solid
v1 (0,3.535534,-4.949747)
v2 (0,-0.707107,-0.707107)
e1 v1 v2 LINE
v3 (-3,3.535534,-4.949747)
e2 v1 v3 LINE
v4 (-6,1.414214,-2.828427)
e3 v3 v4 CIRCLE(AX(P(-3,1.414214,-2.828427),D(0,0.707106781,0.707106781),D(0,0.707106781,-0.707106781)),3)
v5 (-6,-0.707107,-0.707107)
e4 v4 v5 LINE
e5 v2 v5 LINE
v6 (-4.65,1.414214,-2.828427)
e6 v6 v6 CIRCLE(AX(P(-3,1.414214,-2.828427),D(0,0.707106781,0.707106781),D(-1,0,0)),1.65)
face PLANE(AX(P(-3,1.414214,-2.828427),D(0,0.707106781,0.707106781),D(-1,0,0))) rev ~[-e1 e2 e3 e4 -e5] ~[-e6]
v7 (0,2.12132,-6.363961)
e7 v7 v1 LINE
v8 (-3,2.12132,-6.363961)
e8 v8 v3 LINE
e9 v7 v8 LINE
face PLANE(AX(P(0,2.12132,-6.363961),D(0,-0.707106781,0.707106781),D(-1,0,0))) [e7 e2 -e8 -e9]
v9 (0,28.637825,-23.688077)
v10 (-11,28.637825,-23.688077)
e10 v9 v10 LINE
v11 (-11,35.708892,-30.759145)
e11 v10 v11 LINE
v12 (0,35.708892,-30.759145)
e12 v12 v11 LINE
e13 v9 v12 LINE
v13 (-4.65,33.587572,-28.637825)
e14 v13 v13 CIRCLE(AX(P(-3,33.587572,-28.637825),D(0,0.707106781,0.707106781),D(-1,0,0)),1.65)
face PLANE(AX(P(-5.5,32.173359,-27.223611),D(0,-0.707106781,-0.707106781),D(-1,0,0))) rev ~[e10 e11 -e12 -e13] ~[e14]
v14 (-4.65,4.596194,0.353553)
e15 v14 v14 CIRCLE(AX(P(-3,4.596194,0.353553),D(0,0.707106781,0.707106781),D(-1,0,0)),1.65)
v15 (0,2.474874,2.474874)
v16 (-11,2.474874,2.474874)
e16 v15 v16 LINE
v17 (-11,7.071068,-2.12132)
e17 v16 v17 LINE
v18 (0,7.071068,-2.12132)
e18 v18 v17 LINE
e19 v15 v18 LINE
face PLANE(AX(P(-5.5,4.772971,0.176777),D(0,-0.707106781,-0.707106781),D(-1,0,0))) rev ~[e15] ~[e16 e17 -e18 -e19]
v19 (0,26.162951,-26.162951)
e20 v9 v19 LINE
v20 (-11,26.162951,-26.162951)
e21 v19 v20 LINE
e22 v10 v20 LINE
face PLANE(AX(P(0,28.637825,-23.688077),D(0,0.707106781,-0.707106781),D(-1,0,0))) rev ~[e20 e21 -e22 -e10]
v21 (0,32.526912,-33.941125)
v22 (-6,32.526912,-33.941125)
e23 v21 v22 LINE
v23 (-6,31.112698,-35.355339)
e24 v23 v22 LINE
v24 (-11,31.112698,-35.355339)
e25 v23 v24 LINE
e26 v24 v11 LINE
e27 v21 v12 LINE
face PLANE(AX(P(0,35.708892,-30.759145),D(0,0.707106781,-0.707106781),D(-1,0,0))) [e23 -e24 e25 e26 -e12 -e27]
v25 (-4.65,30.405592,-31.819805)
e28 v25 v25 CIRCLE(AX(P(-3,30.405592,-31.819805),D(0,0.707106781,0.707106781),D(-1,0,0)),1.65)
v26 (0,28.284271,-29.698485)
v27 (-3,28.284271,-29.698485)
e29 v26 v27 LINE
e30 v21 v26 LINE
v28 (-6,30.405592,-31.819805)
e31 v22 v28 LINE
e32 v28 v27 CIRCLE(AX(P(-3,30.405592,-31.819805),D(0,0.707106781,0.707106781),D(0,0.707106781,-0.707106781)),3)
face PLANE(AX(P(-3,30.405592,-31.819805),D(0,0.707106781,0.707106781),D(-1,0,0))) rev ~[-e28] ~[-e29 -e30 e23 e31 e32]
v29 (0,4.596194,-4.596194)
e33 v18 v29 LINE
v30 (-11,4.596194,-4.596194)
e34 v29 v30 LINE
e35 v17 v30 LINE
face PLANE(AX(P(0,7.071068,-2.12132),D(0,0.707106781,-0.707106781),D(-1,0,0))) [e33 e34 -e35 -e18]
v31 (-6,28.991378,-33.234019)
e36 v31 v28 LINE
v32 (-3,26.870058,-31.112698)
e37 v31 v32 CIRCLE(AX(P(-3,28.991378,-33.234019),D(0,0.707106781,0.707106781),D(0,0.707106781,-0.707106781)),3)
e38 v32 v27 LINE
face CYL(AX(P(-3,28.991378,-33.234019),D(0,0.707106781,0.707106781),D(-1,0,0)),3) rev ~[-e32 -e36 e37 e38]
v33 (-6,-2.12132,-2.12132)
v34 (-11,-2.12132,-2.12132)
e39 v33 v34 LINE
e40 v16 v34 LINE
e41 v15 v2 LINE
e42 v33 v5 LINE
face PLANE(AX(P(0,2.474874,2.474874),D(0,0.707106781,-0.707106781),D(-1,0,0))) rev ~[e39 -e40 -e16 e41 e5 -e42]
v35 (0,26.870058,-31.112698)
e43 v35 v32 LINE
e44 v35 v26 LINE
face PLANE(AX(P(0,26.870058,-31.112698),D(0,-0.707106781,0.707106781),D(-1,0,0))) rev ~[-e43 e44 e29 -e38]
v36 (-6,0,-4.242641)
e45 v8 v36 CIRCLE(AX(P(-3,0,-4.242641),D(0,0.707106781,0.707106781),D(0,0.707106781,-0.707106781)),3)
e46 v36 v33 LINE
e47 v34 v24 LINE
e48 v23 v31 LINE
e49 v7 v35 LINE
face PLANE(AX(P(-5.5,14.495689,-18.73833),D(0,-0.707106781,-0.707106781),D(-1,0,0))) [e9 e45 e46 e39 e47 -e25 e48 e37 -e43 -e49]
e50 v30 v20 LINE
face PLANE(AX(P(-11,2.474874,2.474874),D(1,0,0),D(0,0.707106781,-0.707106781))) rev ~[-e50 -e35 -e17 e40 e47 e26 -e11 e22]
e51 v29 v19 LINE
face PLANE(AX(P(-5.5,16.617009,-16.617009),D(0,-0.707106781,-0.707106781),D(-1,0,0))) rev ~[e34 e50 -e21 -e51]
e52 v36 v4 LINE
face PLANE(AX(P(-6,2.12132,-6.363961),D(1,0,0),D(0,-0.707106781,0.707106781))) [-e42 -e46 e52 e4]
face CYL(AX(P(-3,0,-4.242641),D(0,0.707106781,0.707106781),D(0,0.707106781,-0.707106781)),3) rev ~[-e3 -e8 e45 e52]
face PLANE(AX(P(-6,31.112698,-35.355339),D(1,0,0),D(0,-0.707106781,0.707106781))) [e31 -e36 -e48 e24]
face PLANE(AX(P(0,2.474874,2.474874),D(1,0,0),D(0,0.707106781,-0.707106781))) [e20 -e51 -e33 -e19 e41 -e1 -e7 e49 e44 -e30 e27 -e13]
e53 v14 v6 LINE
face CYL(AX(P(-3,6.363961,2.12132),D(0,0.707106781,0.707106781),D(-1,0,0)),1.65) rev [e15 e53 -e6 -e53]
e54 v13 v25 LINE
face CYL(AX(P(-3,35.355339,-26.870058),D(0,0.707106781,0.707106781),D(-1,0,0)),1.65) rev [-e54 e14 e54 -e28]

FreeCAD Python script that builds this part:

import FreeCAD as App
import Part
import Sketcher
from FreeCAD import Vector
Q = App.Units.Quantity


def edges_at(feature, points):
    """Names of the edges that pass closest to the given points."""
    edges = feature.Shape.Edges
    near = lambda p: min(range(len(edges)), key=lambda i: edges[i].distToShape(Part.Vertex(*p))[0])
    return sorted({f"Edge{near(p) + 1}" for p in points})


def add_polygon(sketch, points):
    """Adds a closed chain of lines whose ends are joined by coincident constraints."""
    first, n = sketch.GeometryCount, len(points)
    for a, b in zip(points, points[1:] + points[:1]):
        sketch.addGeometry(Part.LineSegment(App.Vector(*a, 0), App.Vector(*b, 0)), False)
    for i in range(n):
        sketch.addConstraint(Sketcher.Constraint("Coincident", first + i, 2, first + (i + 1) % n, 1))

doc = App.newDocument("Part")
params = doc.addObject("Spreadsheet::Sheet", "Params")
for row, (alias, value) in enumerate([
    ("sketch1_width", "6 mm"),
    ("pad1_length", "2 mm"),
    ("fillet_radius", "3 mm"),
    ("sketch2_width", "6 mm"),
    ("pad2_length", "2 mm"),
    ("fillet2_radius", "3 mm"),
    ("sketch3_diameter", "3.3 mm"),
    ("pad3_length", "10 mm"),
    ("sketch4_diameter", "3.3 mm"),
    ("pad4_length", "10 mm"),
    ("sketch5_width", "11 mm"),
    ("sketch5_height", "10 mm"),
    ("pad5_length", "3.5 mm"),
    ("sketch6_width", "11 mm"),
    ("sketch6_height", "6.5 mm"),
    ("pad6_length", "3.5 mm"),
    ("sketch7_width", "11 mm"),
    ("sketch7_height", "47 mm"),
    ("pad7_length", "3 mm"),
], start=1):
    params.set(f"A{row}", alias)
    params.set(f"B{row}", "=" + value)
    params.setAlias(f"B{row}", alias)

body = doc.addObject("PartDesign::Body", "Body")

sketch1 = doc.addObject("Sketcher::SketchObject", "Sketch")
body.addObject(sketch1)
sketch1.AttachmentSupport = (doc.XY_Plane, [""])
sketch1.MapMode = "FlatFace"
sketch1.AttachmentOffset = App.Placement(Vector(0, 0, -3), App.Rotation())
add_polygon(sketch1, [(0, -41), (0, -47), (6, -47), (6, -41)])
sketch1.addConstraint(Sketcher.Constraint("Vertical", 0))
sketch1.addConstraint(Sketcher.Constraint("Horizontal", 1))
sketch1.addConstraint(Sketcher.Constraint("Vertical", 2))
sketch1.addConstraint(Sketcher.Constraint("Horizontal", 3))
sketch1.addConstraint(Sketcher.Constraint("PointOnObject", 0, 2, -2))
sketch1.addConstraint(Sketcher.Constraint("Equal", 3, 0))
sketch1.addConstraint(Sketcher.Constraint("DistanceX", 1, 1, 1, 2, Q("6 mm")))
sketch1.addConstraint(Sketcher.Constraint("DistanceY", 0, 2, -1, 1, Q("47 mm")))
sketch1.setExpression("Constraints[10]", "Params.sketch1_width")
pad1 = doc.addObject("PartDesign::Pad", "Pad")
body.addObject(pad1)
pad1.Profile = sketch1
pad1.setExpression("Length", "Params.pad1_length")
doc.recompute()

fillet = doc.addObject("PartDesign::Fillet", "Fillet")
body.addObject(fillet)
fillet.Base = (pad1, edges_at(pad1, [(6, -41, -2)]))
fillet.setExpression("Radius", "Params.fillet_radius")
body2 = doc.addObject("PartDesign::Body", "Body001")
body2.AllowCompound = True

sketch2 = doc.addObject("Sketcher::SketchObject", "Sketch001")
body2.addObject(sketch2)
sketch2.AttachmentSupport = (doc.getObject("XY_Plane001"), [""])
sketch2.MapMode = "FlatFace"
sketch2.AttachmentOffset = App.Placement(Vector(0, 0, -3), App.Rotation())
add_polygon(sketch2, [(0, 0), (0, -6), (6, -6), (6, 0)])
sketch2.addConstraint(Sketcher.Constraint("Vertical", 0))
sketch2.addConstraint(Sketcher.Constraint("Horizontal", 1))
sketch2.addConstraint(Sketcher.Constraint("Vertical", 2))
sketch2.addConstraint(Sketcher.Constraint("Horizontal", 3))
sketch2.addConstraint(Sketcher.Constraint("Coincident", 3, 2, -1, 1))
sketch2.addConstraint(Sketcher.Constraint("Equal", 3, 0))
sketch2.addConstraint(Sketcher.Constraint("DistanceX", 1, 1, 1, 2, Q("6 mm")))
sketch2.setExpression("Constraints[10]", "Params.sketch2_width")
pad2 = doc.addObject("PartDesign::Pad", "Pad001")
body2.addObject(pad2)
pad2.Profile = sketch2
pad2.setExpression("Length", "Params.pad2_length")
doc.recompute()

fillet2 = doc.addObject("PartDesign::Fillet", "Fillet001")
body2.addObject(fillet2)
fillet2.Base = (pad2, edges_at(pad2, [(6, -6, -2)]))
fillet2.setExpression("Radius", "Params.fillet2_radius")
doc.recompute()

boolean = doc.addObject("PartDesign::Boolean", "Boolean")
body2.addObject(boolean)
boolean.Type = "Fuse"
boolean.addObjects([body])
body3 = doc.addObject("PartDesign::Body", "Body002")

sketch3 = doc.addObject("Sketcher::SketchObject", "Sketch002")
body3.addObject(sketch3)
sketch3.AttachmentSupport = (doc.getObject("XY_Plane002"), [""])
sketch3.MapMode = "FlatFace"
sketch3.addGeometry(Part.Circle(Vector(3, 3, 0), Vector(0, 0, 1), 1.6), False)
sketch3.addConstraint(Sketcher.Constraint("Diameter", 0, Q("3.3 mm")))
sketch3.addConstraint(Sketcher.Constraint("DistanceX", -1, 1, 0, 3, Q("3 mm")))
sketch3.addConstraint(Sketcher.Constraint("DistanceY", -1, 1, 0, 3, Q("3 mm")))
sketch3.setExpression("Constraints[0]", "Params.sketch3_diameter")
pad3 = doc.addObject("PartDesign::Pad", "Pad002")
body3.addObject(pad3)
pad3.Profile = sketch3
pad3.setExpression("Length", "Params.pad3_length")
body4 = doc.addObject("PartDesign::Body", "Body003")
body4.AllowCompound = True

sketch4 = doc.addObject("Sketcher::SketchObject", "Sketch003")
body4.addObject(sketch4)
sketch4.AttachmentSupport = (doc.getObject("XY_Plane003"), [""])
sketch4.MapMode = "FlatFace"
sketch4.addGeometry(Part.Circle(Vector(3, 44, 0), Vector(0, 0, 1), 1.6), False)
sketch4.addConstraint(Sketcher.Constraint("Diameter", 0, Q("3.3 mm")))
sketch4.addConstraint(Sketcher.Constraint("DistanceX", -1, 1, 0, 3, Q("3 mm")))
sketch4.addConstraint(Sketcher.Constraint("DistanceY", -1, 1, 0, 3, Q("44 mm")))
sketch4.setExpression("Constraints[0]", "Params.sketch4_diameter")
pad4 = doc.addObject("PartDesign::Pad", "Pad003")
body4.addObject(pad4)
pad4.Profile = sketch4
pad4.setExpression("Length", "Params.pad4_length")
doc.recompute()

boolean2 = doc.addObject("PartDesign::Boolean", "Boolean001")
body4.addObject(boolean2)
boolean2.Type = "Fuse"
boolean2.addObjects([body3])
body5 = doc.addObject("PartDesign::Body", "Body004")
body5.AllowCompound = True
doc.recompute()

body4.Placement = App.Placement(Vector(0, 0, -6), App.Rotation(Vector(0, 0, 1), 0))
boolean3 = doc.addObject("PartDesign::Boolean", "Boolean002")
body5.addObject(boolean3)
boolean3.Type = "Fuse"
boolean3.addObjects([body4])
body6 = doc.addObject("PartDesign::Body", "Body005")

sketch5 = doc.addObject("Sketcher::SketchObject", "Sketch004")
body6.addObject(sketch5)
sketch5.AttachmentSupport = (doc.getObject("XY_Plane005"), [""])
sketch5.MapMode = "FlatFace"
sketch5.AttachmentOffset = App.Placement(Vector(0, 0, -3.5), App.Rotation())
add_polygon(sketch5, [(0, 47), (0, 37), (11, 37), (11, 47)])
sketch5.addConstraint(Sketcher.Constraint("Vertical", 0))
sketch5.addConstraint(Sketcher.Constraint("Horizontal", 1))
sketch5.addConstraint(Sketcher.Constraint("Vertical", 2))
sketch5.addConstraint(Sketcher.Constraint("Horizontal", 3))
sketch5.addConstraint(Sketcher.Constraint("PointOnObject", 0, 2, -2))
sketch5.addConstraint(Sketcher.Constraint("DistanceX", 1, 1, 1, 2, Q("11 mm")))
sketch5.addConstraint(Sketcher.Constraint("DistanceY", 0, 2, 0, 1, Q("10 mm")))
sketch5.addConstraint(Sketcher.Constraint("DistanceY", -1, 1, 0, 2, Q("37 mm")))
sketch5.setExpression("Constraints[9]", "Params.sketch5_width")
sketch5.setExpression("Constraints[10]", "Params.sketch5_height")
pad5 = doc.addObject("PartDesign::Pad", "Pad004")
body6.addObject(pad5)
pad5.Profile = sketch5
pad5.setExpression("Length", "Params.pad5_length")
body7 = doc.addObject("PartDesign::Body", "Body006")

sketch6 = doc.addObject("Sketcher::SketchObject", "Sketch005")
body7.addObject(sketch6)
sketch6.AttachmentSupport = (doc.getObject("XY_Plane006"), [""])
sketch6.MapMode = "FlatFace"
sketch6.AttachmentOffset = App.Placement(Vector(0, 0, -3.5), App.Rotation())
add_polygon(sketch6, [(0, 6), (0, 0), (11, 0), (11, 6)])
sketch6.addConstraint(Sketcher.Constraint("Vertical", 0))
sketch6.addConstraint(Sketcher.Constraint("Horizontal", 1))
sketch6.addConstraint(Sketcher.Constraint("Vertical", 2))
sketch6.addConstraint(Sketcher.Constraint("Horizontal", 3))
sketch6.addConstraint(Sketcher.Constraint("Coincident", 0, 2, -1, 1))
sketch6.addConstraint(Sketcher.Constraint("DistanceX", 1, 1, 1, 2, Q("11 mm")))
sketch6.addConstraint(Sketcher.Constraint("DistanceY", 0, 2, 0, 1, Q("6.5 mm")))
sketch6.setExpression("Constraints[9]", "Params.sketch6_width")
sketch6.setExpression("Constraints[10]", "Params.sketch6_height")
pad6 = doc.addObject("PartDesign::Pad", "Pad005")
body7.addObject(pad6)
pad6.Profile = sketch6
pad6.setExpression("Length", "Params.pad6_length")
body8 = doc.addObject("PartDesign::Body", "Body007")

sketch7 = doc.addObject("Sketcher::SketchObject", "Sketch006")
body8.addObject(sketch7)
sketch7.AttachmentSupport = (doc.getObject("XY_Plane007"), [""])
sketch7.MapMode = "FlatFace"
add_polygon(sketch7, [(0, 47), (0, 0), (11, 0), (11, 47)])
sketch7.addConstraint(Sketcher.Constraint("Vertical", 0))
sketch7.addConstraint(Sketcher.Constraint("Horizontal", 1))
sketch7.addConstraint(Sketcher.Constraint("Vertical", 2))
sketch7.addConstraint(Sketcher.Constraint("Horizontal", 3))
sketch7.addConstraint(Sketcher.Constraint("Coincident", 0, 2, -1, 1))
sketch7.addConstraint(Sketcher.Constraint("DistanceX", 1, 1, 1, 2, Q("11 mm")))
sketch7.addConstraint(Sketcher.Constraint("DistanceY", 0, 2, 0, 1, Q("47 mm")))
sketch7.setExpression("Constraints[9]", "Params.sketch7_width")
sketch7.setExpression("Constraints[10]", "Params.sketch7_height")
pad7 = doc.addObject("PartDesign::Pad", "Pad006")
body8.addObject(pad7)
pad7.Profile = sketch7
pad7.setExpression("Length", "Params.pad7_length")
doc.recompute()

boolean4 = doc.addObject("PartDesign::Boolean", "Boolean003")
body8.addObject(boolean4)
boolean4.Type = "Fuse"
boolean4.addObjects([body6])
doc.recompute()

boolean5 = doc.addObject("PartDesign::Boolean", "Boolean004")
body8.addObject(boolean5)
boolean5.Type = "Fuse"
boolean5.addObjects([body7])
doc.recompute()

boolean6 = doc.addObject("PartDesign::Boolean", "Boolean005")
body8.addObject(boolean6)
boolean6.Type = "Cut"
boolean6.addObjects([body5])
body9 = doc.addObject("PartDesign::Body", "Body008")
doc.recompute()

body8.Placement = App.Placement(Vector(0, 0, 0), App.Rotation(Vector(1, 0, 0), 180))
boolean7 = doc.addObject("PartDesign::Boolean", "Boolean006")
body9.addObject(boolean7)
boolean7.Type = "Fuse"
boolean7.addObjects([body8])
doc.recompute()

boolean8 = doc.addObject("PartDesign::Boolean", "Boolean007")
body9.addObject(boolean8)
boolean8.Type = "Cut"
boolean8.addObjects([body2])
body10 = doc.addObject("PartDesign::Body", "Body009")
doc.recompute()

body9.Placement = App.Placement(Vector(0, 0, 0), App.Rotation(Vector(1, 0, 0), 45))
boolean9 = doc.addObject("PartDesign::Boolean", "Boolean008")
body10.addObject(boolean9)
boolean9.Type = "Fuse"
boolean9.addObjects([body9])
body11 = doc.addObject("PartDesign::Body", "Body010")
doc.recompute()

body10.Placement = App.Placement(Vector(0, 0, 0), App.Rotation(Vector(0, 0, 1), 180))
boolean10 = doc.addObject("PartDesign::Boolean", "Boolean009")
body11.addObject(boolean10)
boolean10.Type = "Fuse"
boolean10.addObjects([body10])

doc.recompute()
